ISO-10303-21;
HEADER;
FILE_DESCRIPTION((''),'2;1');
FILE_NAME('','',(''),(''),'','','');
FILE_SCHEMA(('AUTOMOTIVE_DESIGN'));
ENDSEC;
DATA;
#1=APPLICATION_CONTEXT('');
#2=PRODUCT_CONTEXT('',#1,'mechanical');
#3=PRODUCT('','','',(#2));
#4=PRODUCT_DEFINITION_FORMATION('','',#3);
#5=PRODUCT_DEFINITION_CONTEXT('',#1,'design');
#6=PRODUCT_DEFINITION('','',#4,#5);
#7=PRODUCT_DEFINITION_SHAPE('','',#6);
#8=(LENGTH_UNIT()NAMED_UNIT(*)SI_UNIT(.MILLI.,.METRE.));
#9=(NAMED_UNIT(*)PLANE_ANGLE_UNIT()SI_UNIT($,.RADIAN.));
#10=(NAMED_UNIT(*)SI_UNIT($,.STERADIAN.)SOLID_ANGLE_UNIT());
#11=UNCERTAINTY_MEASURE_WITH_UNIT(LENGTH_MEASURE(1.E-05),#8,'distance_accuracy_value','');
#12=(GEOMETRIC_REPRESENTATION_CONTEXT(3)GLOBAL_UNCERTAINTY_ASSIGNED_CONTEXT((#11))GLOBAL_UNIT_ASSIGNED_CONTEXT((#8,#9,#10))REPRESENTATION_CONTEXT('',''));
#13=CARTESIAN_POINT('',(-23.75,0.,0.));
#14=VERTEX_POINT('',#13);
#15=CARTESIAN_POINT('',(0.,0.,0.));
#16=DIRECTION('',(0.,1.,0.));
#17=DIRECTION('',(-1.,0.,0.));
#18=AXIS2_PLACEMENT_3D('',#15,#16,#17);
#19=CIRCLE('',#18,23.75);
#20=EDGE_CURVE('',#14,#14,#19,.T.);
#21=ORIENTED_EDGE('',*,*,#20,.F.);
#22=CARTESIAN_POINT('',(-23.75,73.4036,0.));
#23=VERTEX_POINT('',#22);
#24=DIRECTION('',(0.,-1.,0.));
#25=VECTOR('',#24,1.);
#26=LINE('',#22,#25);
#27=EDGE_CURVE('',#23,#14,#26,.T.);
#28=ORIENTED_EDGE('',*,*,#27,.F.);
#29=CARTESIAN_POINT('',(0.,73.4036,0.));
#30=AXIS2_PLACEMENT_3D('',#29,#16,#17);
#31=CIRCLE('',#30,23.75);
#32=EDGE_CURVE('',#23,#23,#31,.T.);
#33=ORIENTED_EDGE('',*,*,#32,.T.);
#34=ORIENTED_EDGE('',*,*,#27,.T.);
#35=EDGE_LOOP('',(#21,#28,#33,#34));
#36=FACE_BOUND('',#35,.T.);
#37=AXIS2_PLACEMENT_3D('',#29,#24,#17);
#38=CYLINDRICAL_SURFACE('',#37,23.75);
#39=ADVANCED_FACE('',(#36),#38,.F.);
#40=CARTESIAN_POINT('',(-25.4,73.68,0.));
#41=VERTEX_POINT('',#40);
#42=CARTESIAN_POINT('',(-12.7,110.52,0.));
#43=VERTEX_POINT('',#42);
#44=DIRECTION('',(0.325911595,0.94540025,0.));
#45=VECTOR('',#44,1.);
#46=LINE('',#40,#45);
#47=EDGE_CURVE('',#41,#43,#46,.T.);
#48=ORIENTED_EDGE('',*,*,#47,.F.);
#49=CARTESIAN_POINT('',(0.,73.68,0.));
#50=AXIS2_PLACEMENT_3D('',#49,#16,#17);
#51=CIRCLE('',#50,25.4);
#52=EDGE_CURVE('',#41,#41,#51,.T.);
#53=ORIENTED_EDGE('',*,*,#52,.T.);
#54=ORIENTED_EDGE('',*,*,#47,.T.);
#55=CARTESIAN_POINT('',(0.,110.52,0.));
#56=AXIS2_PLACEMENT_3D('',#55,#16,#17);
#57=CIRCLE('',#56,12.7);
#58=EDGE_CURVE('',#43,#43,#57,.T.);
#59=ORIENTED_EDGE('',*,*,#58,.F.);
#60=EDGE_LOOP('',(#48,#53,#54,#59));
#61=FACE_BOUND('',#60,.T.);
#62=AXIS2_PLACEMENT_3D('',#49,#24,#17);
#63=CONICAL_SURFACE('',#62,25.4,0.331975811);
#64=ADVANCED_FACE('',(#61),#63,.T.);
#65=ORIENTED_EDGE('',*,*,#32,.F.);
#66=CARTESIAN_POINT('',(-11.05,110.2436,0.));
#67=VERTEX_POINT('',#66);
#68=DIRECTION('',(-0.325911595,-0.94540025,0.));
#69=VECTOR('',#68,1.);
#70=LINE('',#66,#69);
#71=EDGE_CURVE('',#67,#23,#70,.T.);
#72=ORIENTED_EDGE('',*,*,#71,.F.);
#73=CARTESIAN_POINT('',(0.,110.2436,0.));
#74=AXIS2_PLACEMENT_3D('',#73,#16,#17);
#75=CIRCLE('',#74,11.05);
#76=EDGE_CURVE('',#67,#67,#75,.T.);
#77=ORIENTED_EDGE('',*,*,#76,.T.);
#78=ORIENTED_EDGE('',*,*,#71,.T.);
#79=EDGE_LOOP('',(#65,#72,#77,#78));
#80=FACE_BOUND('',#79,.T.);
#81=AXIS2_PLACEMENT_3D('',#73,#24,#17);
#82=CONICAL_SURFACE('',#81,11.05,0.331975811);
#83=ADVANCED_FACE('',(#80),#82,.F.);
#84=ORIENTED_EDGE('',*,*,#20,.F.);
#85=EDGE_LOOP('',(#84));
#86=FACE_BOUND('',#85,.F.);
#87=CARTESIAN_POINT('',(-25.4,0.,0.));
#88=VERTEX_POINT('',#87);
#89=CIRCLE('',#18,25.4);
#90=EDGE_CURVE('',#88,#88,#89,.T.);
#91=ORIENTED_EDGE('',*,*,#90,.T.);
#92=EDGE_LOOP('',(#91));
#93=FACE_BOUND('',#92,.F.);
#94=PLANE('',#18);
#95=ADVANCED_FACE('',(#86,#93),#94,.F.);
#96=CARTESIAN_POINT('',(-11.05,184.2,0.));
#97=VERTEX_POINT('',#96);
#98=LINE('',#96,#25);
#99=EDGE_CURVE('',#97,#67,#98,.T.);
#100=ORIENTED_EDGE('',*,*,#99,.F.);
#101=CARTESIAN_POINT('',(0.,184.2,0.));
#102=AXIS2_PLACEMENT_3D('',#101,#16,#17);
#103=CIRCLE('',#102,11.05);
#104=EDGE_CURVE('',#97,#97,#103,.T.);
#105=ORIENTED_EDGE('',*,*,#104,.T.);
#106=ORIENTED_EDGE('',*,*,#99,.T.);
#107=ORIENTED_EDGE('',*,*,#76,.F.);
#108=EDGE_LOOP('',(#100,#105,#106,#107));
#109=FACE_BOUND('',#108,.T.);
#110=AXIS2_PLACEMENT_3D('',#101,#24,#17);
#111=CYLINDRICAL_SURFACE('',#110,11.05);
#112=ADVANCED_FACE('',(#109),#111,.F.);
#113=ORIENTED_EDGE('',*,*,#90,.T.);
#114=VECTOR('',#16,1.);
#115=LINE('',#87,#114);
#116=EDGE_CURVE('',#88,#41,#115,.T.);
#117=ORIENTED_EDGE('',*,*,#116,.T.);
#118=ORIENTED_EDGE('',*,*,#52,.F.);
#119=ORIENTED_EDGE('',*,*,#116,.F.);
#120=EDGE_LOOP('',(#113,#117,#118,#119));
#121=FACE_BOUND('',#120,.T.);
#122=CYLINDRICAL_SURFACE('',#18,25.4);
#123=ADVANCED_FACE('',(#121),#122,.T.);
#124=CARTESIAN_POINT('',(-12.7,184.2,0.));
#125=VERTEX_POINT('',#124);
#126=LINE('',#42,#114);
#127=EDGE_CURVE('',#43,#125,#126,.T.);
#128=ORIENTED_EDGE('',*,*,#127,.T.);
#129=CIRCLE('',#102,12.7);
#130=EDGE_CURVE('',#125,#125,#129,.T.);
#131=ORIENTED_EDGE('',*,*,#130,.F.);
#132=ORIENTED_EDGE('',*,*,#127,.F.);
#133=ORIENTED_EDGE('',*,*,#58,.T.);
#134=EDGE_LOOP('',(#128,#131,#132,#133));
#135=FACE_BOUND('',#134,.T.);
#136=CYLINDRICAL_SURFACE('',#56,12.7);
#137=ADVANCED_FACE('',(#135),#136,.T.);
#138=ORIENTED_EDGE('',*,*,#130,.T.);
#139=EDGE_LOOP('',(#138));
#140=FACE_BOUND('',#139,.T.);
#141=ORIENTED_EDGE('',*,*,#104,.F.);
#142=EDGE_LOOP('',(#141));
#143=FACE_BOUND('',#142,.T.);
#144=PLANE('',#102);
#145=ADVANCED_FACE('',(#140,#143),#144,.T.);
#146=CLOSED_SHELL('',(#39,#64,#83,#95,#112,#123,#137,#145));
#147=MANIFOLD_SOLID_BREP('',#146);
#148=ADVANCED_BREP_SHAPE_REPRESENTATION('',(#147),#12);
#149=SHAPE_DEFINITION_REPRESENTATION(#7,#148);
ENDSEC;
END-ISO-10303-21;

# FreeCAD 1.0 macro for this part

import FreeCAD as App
import Part
import Sketcher

V = App.Vector


def add_polygon(sketch, points):
    """Adds a closed chain of lines whose ends are joined by coincident constraints."""
    first, n = sketch.GeometryCount, len(points)
    for a, b in zip(points, points[1:] + points[:1]):
        sketch.addGeometry(Part.LineSegment(App.Vector(*a, 0), App.Vector(*b, 0)), False)
    for i in range(n):
        sketch.addConstraint(Sketcher.Constraint("Coincident", first + i, 2, first + (i + 1) % n, 1))

doc = App.newDocument("Part")
params = doc.addObject("Spreadsheet::Sheet", "Params")
for row, (alias, value) in enumerate([
    ("sketch1_width", "1.65 mm"),
    ("sketch1_height", "73.68 mm"),
    ("revolution_angle", "360 deg"),
], start=1):
    params.set(f"A{row}", alias)
    params.set(f"B{row}", "=" + value)
    params.setAlias(f"B{row}", alias)

body = doc.addObject("PartDesign::Body", "Body")

# Sketch on XY plane
sketch1 = body.newObject("Sketcher::SketchObject", "Sketch")
sketch1.AttachmentSupport = (doc.getObject("XY_Plane"), [""])
sketch1.MapMode = "FlatFace"
add_polygon(sketch1, [(-25.4, 73.7), (-25.4, 0), (-23.8, 0), (-23.8, 73.4), (-11.1, 110.2), (-11.1, 184.2), (-12.7, 184.2), (-12.7, 110.5)])  # lines 0-7
sketch1.addConstraint([
    Sketcher.Constraint("Vertical", 0),
    Sketcher.Constraint("Horizontal", 1),
    Sketcher.Constraint("Vertical", 2),
    Sketcher.Constraint("Vertical", 4),
    Sketcher.Constraint("Horizontal", 5),
    Sketcher.Constraint("Vertical", 6),
    Sketcher.Constraint("PointOnObject", 0, 2, -1),
    Sketcher.Constraint("Parallel", 3, 7),
    Sketcher.Constraint("Equal", 1, 5),
    Sketcher.Constraint("Equal", 0, 6),
    Sketcher.Constraint("DistanceX", 1, 1, 1, 2, 1.65),
    Sketcher.Constraint("DistanceY", 0, 2, 0, 1, 73.68),
    Sketcher.Constraint("DistanceX", 0, 2, -1, 1, 25.4),
    Sketcher.Constraint("DistanceY", -1, 1, 4, 2, 184.2),
    Sketcher.Constraint("DistanceX", 5, 2, -1, 1, 12.7),
    Sketcher.Constraint("DistanceY", 2, 1, 2, 2, 73.4036),
])
sketch1.setExpression("Constraints[18]", "Params.sketch1_width")
sketch1.setExpression("Constraints[19]", "Params.sketch1_height")
revolution = body.newObject("PartDesign::Revolution", "Revolution")
revolution.Profile = sketch1
revolution.ReferenceAxis = (sketch1, ["V_Axis"])
revolution.setExpression("Angle", "Params.revolution_angle")

doc.recompute()
